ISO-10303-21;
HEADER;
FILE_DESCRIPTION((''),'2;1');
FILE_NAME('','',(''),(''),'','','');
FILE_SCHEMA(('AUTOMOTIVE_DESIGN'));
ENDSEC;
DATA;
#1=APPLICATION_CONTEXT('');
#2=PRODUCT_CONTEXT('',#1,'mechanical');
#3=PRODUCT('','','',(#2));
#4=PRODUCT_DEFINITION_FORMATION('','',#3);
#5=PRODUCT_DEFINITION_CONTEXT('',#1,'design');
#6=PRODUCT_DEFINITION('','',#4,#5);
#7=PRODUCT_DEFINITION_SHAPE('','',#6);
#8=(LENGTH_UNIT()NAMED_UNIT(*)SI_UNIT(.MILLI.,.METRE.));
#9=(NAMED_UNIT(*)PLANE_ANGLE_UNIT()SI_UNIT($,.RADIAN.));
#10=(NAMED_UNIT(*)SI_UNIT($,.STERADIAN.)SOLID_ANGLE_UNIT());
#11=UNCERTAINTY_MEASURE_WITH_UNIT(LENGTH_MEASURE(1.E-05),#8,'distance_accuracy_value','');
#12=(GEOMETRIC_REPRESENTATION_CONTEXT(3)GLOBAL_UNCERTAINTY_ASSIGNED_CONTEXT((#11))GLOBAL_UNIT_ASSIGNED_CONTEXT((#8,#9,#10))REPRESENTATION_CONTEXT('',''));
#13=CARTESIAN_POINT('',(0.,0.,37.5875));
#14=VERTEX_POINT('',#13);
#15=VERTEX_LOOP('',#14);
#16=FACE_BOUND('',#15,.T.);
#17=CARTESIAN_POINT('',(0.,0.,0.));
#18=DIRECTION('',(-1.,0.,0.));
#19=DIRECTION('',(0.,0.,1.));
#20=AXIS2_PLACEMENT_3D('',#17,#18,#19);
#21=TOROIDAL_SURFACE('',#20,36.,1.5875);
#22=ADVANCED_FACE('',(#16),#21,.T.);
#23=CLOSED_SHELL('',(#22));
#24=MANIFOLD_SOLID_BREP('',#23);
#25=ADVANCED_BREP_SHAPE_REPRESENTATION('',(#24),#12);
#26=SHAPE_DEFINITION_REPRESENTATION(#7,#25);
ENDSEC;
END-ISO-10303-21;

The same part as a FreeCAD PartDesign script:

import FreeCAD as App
import Part
import Sketcher

V = App.Vector
Q = App.Units.Quantity

doc = App.newDocument("Part")
body = doc.addObject("PartDesign::Body", "Body")

# Sketch on XY plane
sketch1 = doc.addObject("Sketcher::SketchObject", "Sketch")
body.addObject(sketch1)
sketch1.AttachmentSupport = (doc.XY_Plane, [""])
sketch1.MapMode = "FlatFace"
sketch1.addGeometry(Part.Circle(V(0, 36, 0), V(0, 0, 1), 1.6), False)
sketch1.addConstraint(Sketcher.Constraint("PointOnObject", 0, 3, -2))
sketch1.addConstraint(Sketcher.Constraint("Diameter", 0, Q("0.125 in")))
sketch1.addConstraint(Sketcher.Constraint("DistanceY", -1, 1, 0, 3, Q("36 mm")))
revolution = doc.addObject("PartDesign::Revolution", "Revolution")
body.addObject(revolution)
revolution.Profile = sketch1
revolution.ReferenceAxis = (sketch1, ["H_Axis"])
revolution.Angle = 360

doc.recompute()
